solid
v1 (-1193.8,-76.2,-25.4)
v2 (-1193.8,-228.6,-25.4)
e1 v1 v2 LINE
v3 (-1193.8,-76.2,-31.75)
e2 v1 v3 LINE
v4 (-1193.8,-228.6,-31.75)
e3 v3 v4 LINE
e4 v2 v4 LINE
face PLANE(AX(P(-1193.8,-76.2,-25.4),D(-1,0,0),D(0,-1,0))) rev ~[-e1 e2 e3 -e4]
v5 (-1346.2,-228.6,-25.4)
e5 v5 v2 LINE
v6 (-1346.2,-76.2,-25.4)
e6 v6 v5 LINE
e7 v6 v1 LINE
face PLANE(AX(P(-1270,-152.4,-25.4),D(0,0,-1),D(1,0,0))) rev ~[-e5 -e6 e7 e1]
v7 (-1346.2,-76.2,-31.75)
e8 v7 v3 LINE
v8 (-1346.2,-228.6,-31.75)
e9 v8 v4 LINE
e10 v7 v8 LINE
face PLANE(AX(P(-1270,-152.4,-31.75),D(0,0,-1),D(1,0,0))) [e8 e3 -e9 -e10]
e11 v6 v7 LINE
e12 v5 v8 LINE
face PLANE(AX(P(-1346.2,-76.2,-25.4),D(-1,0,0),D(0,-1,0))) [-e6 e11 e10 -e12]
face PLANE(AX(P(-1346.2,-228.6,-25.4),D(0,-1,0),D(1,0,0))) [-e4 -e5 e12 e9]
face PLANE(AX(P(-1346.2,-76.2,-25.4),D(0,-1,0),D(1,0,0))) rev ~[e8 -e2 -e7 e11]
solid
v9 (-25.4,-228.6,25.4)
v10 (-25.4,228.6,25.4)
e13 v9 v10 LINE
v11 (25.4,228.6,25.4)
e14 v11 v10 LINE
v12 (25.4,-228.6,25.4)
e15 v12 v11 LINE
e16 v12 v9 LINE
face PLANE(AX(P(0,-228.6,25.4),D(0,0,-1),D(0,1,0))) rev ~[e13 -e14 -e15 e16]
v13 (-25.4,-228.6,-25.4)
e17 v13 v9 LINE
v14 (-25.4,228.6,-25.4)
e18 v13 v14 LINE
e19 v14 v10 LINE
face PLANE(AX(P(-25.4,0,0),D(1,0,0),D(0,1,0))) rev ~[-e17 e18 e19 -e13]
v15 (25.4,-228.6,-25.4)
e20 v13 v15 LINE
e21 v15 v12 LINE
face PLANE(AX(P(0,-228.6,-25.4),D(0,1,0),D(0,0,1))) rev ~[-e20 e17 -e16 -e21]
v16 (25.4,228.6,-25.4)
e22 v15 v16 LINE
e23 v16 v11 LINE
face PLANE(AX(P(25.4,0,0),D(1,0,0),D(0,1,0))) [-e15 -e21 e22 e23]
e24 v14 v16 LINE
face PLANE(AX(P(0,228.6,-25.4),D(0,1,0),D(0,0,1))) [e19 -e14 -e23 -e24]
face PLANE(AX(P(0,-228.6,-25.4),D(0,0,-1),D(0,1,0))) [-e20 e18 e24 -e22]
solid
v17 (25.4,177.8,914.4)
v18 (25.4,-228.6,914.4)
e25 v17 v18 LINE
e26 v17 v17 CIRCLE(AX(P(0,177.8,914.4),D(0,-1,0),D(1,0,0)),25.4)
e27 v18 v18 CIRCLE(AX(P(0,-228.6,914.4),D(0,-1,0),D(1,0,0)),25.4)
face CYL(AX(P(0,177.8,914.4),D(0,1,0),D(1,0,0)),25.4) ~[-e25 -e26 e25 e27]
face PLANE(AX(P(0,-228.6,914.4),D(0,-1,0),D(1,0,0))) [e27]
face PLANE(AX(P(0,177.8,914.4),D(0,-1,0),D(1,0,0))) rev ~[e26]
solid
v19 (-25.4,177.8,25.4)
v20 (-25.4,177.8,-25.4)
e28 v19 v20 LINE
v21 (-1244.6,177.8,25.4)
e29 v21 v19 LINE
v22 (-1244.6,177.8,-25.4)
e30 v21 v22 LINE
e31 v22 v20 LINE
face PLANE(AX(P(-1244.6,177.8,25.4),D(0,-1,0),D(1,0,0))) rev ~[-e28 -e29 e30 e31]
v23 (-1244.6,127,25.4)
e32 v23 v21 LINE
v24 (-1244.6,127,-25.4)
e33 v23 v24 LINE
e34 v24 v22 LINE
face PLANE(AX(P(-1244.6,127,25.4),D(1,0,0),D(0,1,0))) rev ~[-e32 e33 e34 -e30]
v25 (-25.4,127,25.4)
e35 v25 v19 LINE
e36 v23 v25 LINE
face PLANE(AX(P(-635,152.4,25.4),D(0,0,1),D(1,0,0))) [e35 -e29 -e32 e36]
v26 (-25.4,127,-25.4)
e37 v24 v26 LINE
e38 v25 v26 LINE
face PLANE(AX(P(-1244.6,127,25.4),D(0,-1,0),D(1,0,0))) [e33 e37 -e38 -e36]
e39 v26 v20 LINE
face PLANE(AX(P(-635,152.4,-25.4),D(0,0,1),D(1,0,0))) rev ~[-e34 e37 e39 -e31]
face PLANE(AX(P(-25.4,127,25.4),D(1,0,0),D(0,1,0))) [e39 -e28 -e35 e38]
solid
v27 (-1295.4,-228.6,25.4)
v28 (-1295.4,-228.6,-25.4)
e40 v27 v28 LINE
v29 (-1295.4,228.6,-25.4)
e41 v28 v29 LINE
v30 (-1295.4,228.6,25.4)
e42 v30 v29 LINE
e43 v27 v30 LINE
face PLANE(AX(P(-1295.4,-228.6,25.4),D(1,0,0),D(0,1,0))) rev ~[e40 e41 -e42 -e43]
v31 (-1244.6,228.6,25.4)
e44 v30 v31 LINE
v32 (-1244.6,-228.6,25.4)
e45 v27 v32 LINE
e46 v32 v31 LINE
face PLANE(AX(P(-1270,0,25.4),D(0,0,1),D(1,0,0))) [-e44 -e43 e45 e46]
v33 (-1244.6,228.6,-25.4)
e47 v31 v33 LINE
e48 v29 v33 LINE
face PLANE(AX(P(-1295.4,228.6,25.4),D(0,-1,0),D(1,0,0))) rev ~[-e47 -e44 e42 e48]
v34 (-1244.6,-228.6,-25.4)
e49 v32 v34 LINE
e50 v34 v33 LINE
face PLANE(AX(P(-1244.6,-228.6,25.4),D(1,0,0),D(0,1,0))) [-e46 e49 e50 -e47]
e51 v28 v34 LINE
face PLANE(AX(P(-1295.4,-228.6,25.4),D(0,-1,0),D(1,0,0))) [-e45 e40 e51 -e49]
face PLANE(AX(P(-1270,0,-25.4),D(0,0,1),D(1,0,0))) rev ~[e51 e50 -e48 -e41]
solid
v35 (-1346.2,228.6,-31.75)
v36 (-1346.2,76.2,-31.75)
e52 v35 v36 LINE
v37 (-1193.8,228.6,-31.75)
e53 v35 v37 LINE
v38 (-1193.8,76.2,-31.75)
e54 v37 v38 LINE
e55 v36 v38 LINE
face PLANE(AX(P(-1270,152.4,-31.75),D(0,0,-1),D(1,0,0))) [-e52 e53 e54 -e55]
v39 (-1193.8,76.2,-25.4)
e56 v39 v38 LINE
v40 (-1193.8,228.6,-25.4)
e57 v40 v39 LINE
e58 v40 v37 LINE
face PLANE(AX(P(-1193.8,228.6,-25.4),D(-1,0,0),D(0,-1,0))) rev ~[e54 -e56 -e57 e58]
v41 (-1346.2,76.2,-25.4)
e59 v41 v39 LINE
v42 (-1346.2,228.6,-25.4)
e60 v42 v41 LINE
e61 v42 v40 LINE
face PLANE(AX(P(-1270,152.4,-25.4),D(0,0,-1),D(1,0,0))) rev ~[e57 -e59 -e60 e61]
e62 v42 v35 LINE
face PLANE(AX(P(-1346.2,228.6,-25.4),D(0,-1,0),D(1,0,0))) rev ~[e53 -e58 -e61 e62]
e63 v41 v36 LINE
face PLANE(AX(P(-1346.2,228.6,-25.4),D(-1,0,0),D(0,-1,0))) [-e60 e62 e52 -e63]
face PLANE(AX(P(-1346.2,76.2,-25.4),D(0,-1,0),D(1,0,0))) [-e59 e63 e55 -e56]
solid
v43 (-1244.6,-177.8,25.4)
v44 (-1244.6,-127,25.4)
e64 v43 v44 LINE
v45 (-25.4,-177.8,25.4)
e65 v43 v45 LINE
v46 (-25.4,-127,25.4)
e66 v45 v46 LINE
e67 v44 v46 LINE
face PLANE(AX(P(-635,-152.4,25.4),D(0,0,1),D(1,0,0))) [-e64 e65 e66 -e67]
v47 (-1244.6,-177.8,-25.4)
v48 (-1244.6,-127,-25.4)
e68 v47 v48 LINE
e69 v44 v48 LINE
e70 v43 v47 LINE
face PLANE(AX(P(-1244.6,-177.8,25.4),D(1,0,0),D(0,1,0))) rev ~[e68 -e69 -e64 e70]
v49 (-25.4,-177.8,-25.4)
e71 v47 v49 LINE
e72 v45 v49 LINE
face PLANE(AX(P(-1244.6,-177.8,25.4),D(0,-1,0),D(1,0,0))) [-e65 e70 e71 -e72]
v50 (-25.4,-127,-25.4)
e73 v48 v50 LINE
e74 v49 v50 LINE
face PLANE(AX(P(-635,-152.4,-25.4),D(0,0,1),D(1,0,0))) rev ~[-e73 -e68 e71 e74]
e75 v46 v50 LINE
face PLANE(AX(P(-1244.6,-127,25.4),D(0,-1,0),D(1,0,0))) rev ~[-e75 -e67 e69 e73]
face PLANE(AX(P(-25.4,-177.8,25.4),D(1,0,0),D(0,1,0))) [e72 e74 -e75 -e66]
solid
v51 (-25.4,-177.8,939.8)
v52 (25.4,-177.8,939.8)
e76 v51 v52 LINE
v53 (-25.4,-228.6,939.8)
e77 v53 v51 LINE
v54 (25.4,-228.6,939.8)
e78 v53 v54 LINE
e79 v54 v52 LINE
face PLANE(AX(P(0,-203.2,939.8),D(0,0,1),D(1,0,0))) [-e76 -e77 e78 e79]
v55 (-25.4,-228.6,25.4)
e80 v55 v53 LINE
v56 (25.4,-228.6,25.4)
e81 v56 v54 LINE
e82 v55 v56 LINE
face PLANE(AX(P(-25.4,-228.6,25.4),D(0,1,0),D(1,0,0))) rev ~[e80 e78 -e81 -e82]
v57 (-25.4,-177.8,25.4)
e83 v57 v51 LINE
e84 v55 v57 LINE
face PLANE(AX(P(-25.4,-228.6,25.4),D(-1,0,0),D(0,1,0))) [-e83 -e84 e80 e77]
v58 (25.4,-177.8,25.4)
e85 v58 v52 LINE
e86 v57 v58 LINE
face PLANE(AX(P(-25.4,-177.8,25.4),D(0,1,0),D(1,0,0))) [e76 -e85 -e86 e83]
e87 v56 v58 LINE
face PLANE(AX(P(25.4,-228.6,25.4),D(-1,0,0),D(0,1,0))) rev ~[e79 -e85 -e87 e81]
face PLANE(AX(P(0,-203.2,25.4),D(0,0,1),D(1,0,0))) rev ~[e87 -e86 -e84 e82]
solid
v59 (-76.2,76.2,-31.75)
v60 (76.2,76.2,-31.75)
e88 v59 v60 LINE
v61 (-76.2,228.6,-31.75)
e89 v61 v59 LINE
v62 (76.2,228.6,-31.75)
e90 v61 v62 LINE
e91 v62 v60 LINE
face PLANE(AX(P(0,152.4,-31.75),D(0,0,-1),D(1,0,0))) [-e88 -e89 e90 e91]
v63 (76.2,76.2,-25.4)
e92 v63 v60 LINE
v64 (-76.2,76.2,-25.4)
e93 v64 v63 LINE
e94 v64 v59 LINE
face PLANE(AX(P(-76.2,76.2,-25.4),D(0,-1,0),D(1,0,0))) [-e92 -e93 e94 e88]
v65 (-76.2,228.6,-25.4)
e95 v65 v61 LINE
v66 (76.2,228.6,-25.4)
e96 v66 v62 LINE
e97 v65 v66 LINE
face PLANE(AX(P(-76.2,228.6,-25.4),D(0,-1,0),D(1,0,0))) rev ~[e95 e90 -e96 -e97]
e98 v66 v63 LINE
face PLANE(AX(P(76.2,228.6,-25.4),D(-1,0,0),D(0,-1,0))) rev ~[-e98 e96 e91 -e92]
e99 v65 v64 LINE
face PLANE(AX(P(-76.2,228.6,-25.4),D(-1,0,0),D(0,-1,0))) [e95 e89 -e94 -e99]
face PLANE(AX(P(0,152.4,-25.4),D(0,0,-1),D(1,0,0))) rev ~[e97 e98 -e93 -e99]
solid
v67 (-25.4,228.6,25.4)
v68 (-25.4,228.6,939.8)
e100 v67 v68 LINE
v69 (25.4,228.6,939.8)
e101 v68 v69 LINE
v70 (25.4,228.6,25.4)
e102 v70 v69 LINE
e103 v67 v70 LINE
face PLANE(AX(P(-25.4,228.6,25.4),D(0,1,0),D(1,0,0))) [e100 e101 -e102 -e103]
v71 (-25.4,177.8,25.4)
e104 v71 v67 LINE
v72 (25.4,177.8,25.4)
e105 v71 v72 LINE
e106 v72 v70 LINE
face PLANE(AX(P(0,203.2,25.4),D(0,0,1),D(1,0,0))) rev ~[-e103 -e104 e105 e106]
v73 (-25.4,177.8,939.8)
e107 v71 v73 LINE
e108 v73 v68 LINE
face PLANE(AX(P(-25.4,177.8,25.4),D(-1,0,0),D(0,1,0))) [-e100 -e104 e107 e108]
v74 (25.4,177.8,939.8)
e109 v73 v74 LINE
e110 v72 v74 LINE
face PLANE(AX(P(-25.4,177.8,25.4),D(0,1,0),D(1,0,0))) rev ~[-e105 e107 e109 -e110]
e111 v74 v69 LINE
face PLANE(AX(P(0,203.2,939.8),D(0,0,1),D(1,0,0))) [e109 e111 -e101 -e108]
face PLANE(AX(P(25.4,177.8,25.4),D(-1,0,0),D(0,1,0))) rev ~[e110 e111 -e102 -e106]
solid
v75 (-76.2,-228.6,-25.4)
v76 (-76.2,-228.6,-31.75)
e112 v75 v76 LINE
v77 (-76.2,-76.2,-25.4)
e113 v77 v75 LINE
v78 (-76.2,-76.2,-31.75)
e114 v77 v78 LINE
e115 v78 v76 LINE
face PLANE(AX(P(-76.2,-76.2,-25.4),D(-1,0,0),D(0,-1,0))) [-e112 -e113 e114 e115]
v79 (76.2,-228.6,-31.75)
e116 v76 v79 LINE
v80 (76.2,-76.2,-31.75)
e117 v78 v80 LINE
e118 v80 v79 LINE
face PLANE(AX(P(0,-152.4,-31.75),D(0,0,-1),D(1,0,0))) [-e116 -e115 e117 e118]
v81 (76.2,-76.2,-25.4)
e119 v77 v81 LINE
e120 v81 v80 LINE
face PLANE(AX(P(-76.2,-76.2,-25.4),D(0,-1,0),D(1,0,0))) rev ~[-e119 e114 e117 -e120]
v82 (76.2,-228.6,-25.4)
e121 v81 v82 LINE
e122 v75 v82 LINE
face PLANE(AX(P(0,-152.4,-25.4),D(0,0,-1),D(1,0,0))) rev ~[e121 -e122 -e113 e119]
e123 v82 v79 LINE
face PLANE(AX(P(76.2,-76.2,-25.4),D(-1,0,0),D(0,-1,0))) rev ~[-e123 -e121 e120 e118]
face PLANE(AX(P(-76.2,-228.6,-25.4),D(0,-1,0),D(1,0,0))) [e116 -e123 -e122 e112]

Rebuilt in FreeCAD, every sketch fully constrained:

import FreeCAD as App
import Part
import Sketcher
from FreeCAD import Vector
Q = App.Units.Quantity


def add_polygon(sketch, points):
    """Adds a closed chain of lines whose ends are joined by coincident constraints."""
    first, n = sketch.GeometryCount, len(points)
    for a, b in zip(points, points[1:] + points[:1]):
        sketch.addGeometry(Part.LineSegment(App.Vector(*a, 0), App.Vector(*b, 0)), False)
    for i in range(n):
        sketch.addConstraint(Sketcher.Constraint("Coincident", first + i, 2, first + (i + 1) % n, 1))

doc = App.newDocument("Part")
params = doc.addObject("Spreadsheet::Sheet", "Params")
for row, (alias, value) in enumerate([
    ("sketch1_width", "18 in"),
    ("sketch1_height", "2 in"),
    ("pad1_length", "2 in"),
    ("sketch2_width", "48 in"),
    ("sketch2_height", "2 in"),
    ("pad2_length", "2 in"),
    ("sketch3_width", "2 in"),
    ("sketch3_height", "18 in"),
    ("pad3_length", "2 in"),
    ("sketch4_width", "6 in"),
    ("pad4_length", "0.25 in"),
    ("sketch5_width", "2 in"),
    ("pad5_length", "36 in"),
    ("sketch6_diameter", "2 in"),
    ("pad6_length", "16 in"),
], start=1):
    params.set(f"A{row}", alias)
    params.set(f"B{row}", "=" + value)
    params.setAlias(f"B{row}", alias)

body = doc.addObject("PartDesign::Body", "Body")

sketch1 = body.newObject("Sketcher::SketchObject", "Sketch")
sketch1.AttachmentSupport = (doc.getObject("YZ_Plane"), [""])
sketch1.MapMode = "FlatFace"
add_polygon(sketch1, [(-229, 25), (-229, -25), (229, -25), (229, 25)])
sketch1.addConstraint([
    Sketcher.Constraint("Vertical", 0),
    Sketcher.Constraint("Horizontal", 1),
    Sketcher.Constraint("Vertical", 2),
    Sketcher.Constraint("Horizontal", 3),
    Sketcher.Constraint("Symmetric", 0, 2, 2, 2, -1, 1),
    Sketcher.Constraint("DistanceX", 1, 1, 1, 2, Q("18 in")),
    Sketcher.Constraint("DistanceY", 0, 2, 0, 1, Q("2 in")),
])
sketch1.setExpression("Constraints[9]", "Params.sketch1_width")
sketch1.setExpression("Constraints[10]", "Params.sketch1_height")
pad1 = body.newObject("PartDesign::Pad", "Pad")
pad1.Profile = sketch1
pad1.setExpression("Length", "Params.pad1_length")
pad1.Midplane = True
body2 = doc.addObject("PartDesign::Body", "Body001")
body2.AllowCompound = True

sketch2 = body2.newObject("Sketcher::SketchObject", "Sketch001")
sketch2.AttachmentSupport = (doc.getObject("XY_Plane001"), [""])
sketch2.MapMode = "FlatFace"
sketch2.AttachmentOffset = App.Placement(Vector(0, 0, 1 * 25.4), App.Rotation())
add_polygon(sketch2, [(-1245, 178), (-1245, 127), (-25, 127), (-25, 178)])
add_polygon(sketch2, [(-1245, -127), (-1245, -178), (-25, -178), (-25, -127)])
sketch2.addConstraint([
    Sketcher.Constraint("Vertical", 0),
    Sketcher.Constraint("Horizontal", 1),
    Sketcher.Constraint("Vertical", 2),
    Sketcher.Constraint("Horizontal", 3),
    Sketcher.Constraint("Vertical", 4),
    Sketcher.Constraint("Horizontal", 5),
    Sketcher.Constraint("Vertical", 6),
    Sketcher.Constraint("Horizontal", 7),
    Sketcher.Constraint("Symmetric", 3, 2, 4, 2, -1),
    Sketcher.Constraint("Symmetric", 1, 2, 6, 2, -1),
    Sketcher.Constraint("DistanceX", 1, 1, 1, 2, Q("48 in")),
    Sketcher.Constraint("DistanceY", 0, 2, 0, 1, Q("2 in")),
    Sketcher.Constraint("DistanceX", 0, 2, -1, 1, Q("49 in")),
    Sketcher.Constraint("DistanceY", -1, 1, 0, 2, Q("5 in")),
])
sketch2.setExpression("Constraints[18]", "Params.sketch2_width")
sketch2.setExpression("Constraints[19]", "Params.sketch2_height")
pad2 = body2.newObject("PartDesign::Pad", "Pad001")
pad2.Profile = sketch2
pad2.setExpression("Length", "Params.pad2_length")
pad2.Reversed = True
body3 = doc.addObject("PartDesign::Body", "Body002")

sketch3 = body3.newObject("Sketcher::SketchObject", "Sketch002")
sketch3.AttachmentSupport = (doc.getObject("XY_Plane002"), [""])
sketch3.MapMode = "FlatFace"
sketch3.AttachmentOffset = App.Placement(Vector(0, 0, 1 * 25.4), App.Rotation())
add_polygon(sketch3, [(-1295, 229), (-1295, -229), (-1245, -229), (-1245, 229)])
sketch3.addConstraint([
    Sketcher.Constraint("Vertical", 0),
    Sketcher.Constraint("Horizontal", 1),
    Sketcher.Constraint("Vertical", 2),
    Sketcher.Constraint("Horizontal", 3),
    Sketcher.Constraint("DistanceX", 1, 1, 1, 2, Q("2 in")),
    Sketcher.Constraint("DistanceY", 0, 2, 0, 1, Q("18 in")),
    Sketcher.Constraint("DistanceX", 0, 2, -1, 1, Q("51 in")),
    Sketcher.Constraint("DistanceY", 0, 2, -1, 1, Q("9 in")),
])
sketch3.setExpression("Constraints[8]", "Params.sketch3_width")
sketch3.setExpression("Constraints[9]", "Params.sketch3_height")
pad3 = body3.newObject("PartDesign::Pad", "Pad002")
pad3.Profile = sketch3
pad3.setExpression("Length", "Params.pad3_length")
pad3.Reversed = True
body4 = doc.addObject("PartDesign::Body", "Body003")
body4.AllowCompound = True

sketch4 = body4.newObject("Sketcher::SketchObject", "Sketch003")
sketch4.AttachmentSupport = (doc.getObject("XY_Plane003"), [""])
sketch4.MapMode = "FlatFace"
sketch4.AttachmentOffset = App.Placement(Vector(0, 0, -1 * 25.4), App.Rotation())
add_polygon(sketch4, [(-1346, -229), (-1346, -76), (-1194, -76), (-1194, -229)])
add_polygon(sketch4, [(-1346, 76), (-1346, 229), (-1194, 229), (-1194, 76)])
add_polygon(sketch4, [(-76, -229), (-76, -76), (76, -76), (76, -229)])
add_polygon(sketch4, [(-76, 76), (-76, 229), (76, 229), (76, 76)])
sketch4.addConstraint([
    Sketcher.Constraint("Vertical", 0),
    Sketcher.Constraint("Horizontal", 1),
    Sketcher.Constraint("Vertical", 2),
    Sketcher.Constraint("Horizontal", 3),
    Sketcher.Constraint("Vertical", 4),
    Sketcher.Constraint("Horizontal", 5),
    Sketcher.Constraint("Vertical", 6),
    Sketcher.Constraint("Horizontal", 7),
    Sketcher.Constraint("Vertical", 8),
    Sketcher.Constraint("Horizontal", 9),
    Sketcher.Constraint("Vertical", 10),
    Sketcher.Constraint("Horizontal", 11),
    Sketcher.Constraint("Vertical", 12),
    Sketcher.Constraint("Horizontal", 13),
    Sketcher.Constraint("Vertical", 14),
    Sketcher.Constraint("Horizontal", 15),
    Sketcher.Constraint("Symmetric", 10, 2, 12, 2, -1, 1),
    Sketcher.Constraint("Symmetric", 8, 2, 14, 2, -1, 1),
    Sketcher.Constraint("Symmetric", 3, 2, 4, 2, -1),
    Sketcher.Constraint("Symmetric", 1, 2, 6, 2, -1),
    Sketcher.Constraint("Horizontal", 1, 2, 8, 2),
    Sketcher.Constraint("Horizontal", 3, 2, 10, 2),
    Sketcher.Constraint("Vertical", 11, 2, 12, 2),
    Sketcher.Constraint("Equal", 7, 9),
    Sketcher.Constraint("Equal", 15, 0),
    Sketcher.Constraint("DistanceX", 1, 1, 1, 2, Q("6 in")),
    Sketcher.Constraint("DistanceX", 0, 2, -1, 1, Q("53 in")),
    Sketcher.Constraint("DistanceY", 0, 2, -1, 1, Q("3 in")),
])
sketch4.setExpression("Constraints[41]", "Params.sketch4_width")
pad4 = body4.newObject("PartDesign::Pad", "Pad003")
pad4.Profile = sketch4
pad4.setExpression("Length", "Params.pad4_length")
pad4.Reversed = True
body5 = doc.addObject("PartDesign::Body", "Body004")
body5.AllowCompound = True

sketch5 = body5.newObject("Sketcher::SketchObject", "Sketch004")
sketch5.AttachmentSupport = (doc.getObject("XY_Plane004"), [""])
sketch5.MapMode = "FlatFace"
sketch5.AttachmentOffset = App.Placement(Vector(0, 0, 1 * 25.4), App.Rotation())
add_polygon(sketch5, [(-25, -178), (-25, -229), (25, -229), (25, -178)])
add_polygon(sketch5, [(-25, 229), (-25, 178), (25, 178), (25, 229)])
sketch5.addConstraint([
    Sketcher.Constraint("Vertical", 0),
    Sketcher.Constraint("Horizontal", 1),
    Sketcher.Constraint("Vertical", 2),
    Sketcher.Constraint("Horizontal", 3),
    Sketcher.Constraint("Vertical", 4),
    Sketcher.Constraint("Horizontal", 5),
    Sketcher.Constraint("Vertical", 6),
    Sketcher.Constraint("Horizontal", 7),
    Sketcher.Constraint("Symmetric", 2, 2, 4, 2, -1, 1),
    Sketcher.Constraint("Symmetric", 0, 2, 6, 2, -1, 1),
    Sketcher.Constraint("Vertical", 3, 2, 4, 2),
    Sketcher.Constraint("Equal", 7, 0),
    Sketcher.Constraint("DistanceX", 1, 1, 1, 2, Q("2 in")),
    Sketcher.Constraint("DistanceY", 0, 2, -1, 1, Q("9 in")),
])
sketch5.setExpression("Constraints[20]", "Params.sketch5_width")
pad5 = body5.newObject("PartDesign::Pad", "Pad004")
pad5.Profile = sketch5
pad5.setExpression("Length", "Params.pad5_length")
body6 = doc.addObject("PartDesign::Body", "Body005")

sketch6 = body6.newObject("Sketcher::SketchObject", "Sketch005")
sketch6.AttachmentSupport = (doc.getObject("XZ_Plane005"), [""])
sketch6.MapMode = "FlatFace"
sketch6.AttachmentOffset = App.Placement(Vector(0, 0, -7 * 25.4), App.Rotation())
sketch6.addGeometry(Part.Circle(Vector(0, 914, 0), Vector(0, 0, 1), 25), False)
sketch6.addConstraint([
    Sketcher.Constraint("PointOnObject", 0, 3, -2),
    Sketcher.Constraint("Diameter", 0, Q("2 in")),
    Sketcher.Constraint("DistanceY", -1, 1, 0, 3, Q("36 in")),
])
sketch6.setExpression("Constraints[1]", "Params.sketch6_diameter")
pad6 = body6.newObject("PartDesign::Pad", "Pad005")
pad6.Profile = sketch6
pad6.setExpression("Length", "Params.pad6_length")

doc.recompute()
